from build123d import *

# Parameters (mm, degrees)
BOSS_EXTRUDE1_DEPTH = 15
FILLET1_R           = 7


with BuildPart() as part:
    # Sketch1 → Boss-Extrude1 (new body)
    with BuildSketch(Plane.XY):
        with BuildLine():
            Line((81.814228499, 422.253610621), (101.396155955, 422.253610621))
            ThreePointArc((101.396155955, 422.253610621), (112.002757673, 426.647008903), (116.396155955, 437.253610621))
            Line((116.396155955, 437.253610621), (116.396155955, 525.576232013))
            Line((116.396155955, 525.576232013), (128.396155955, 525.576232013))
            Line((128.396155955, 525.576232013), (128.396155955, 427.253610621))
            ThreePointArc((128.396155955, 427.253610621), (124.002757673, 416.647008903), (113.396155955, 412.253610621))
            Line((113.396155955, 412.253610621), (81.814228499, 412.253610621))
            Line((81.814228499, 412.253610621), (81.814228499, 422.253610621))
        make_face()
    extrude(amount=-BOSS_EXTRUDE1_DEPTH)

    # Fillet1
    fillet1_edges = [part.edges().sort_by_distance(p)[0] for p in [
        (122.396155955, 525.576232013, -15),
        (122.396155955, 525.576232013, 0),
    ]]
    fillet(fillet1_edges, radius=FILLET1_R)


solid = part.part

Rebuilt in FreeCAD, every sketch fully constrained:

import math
import FreeCAD as App
import Part
import Sketcher

V = App.Vector
Q = App.Units.Quantity


def edges_at(feature, points):
    """Names of the edges that pass closest to the given points."""
    edges = feature.Shape.Edges
    near = lambda p: min(range(len(edges)), key=lambda i: edges[i].distToShape(Part.Vertex(*p))[0])
    return sorted({f"Edge{near(p) + 1}" for p in points})

doc = App.newDocument("Part")
body = doc.addObject("PartDesign::Body", "Body")

sketch1 = body.newObject("Sketcher::SketchObject", "Sketch")
sketch1.AttachmentSupport = (doc.getObject("XY_Plane"), [""])
sketch1.MapMode = "FlatFace"
sketch1.addGeometry(Part.LineSegment(V(101, 422, 0), V(82, 422, 0)), False)
sketch1.addGeometry(Part.LineSegment(V(82, 422, 0), V(82, 412, 0)), False)
sketch1.addGeometry(Part.LineSegment(V(82, 412, 0), V(113, 412, 0)), False)
sketch1.addGeometry(Part.ArcOfCircle(Part.Circle(V(113, 427, 0), V(0, 0, 1), 15), math.radians(-90), math.radians(0)), False)
sketch1.addGeometry(Part.LineSegment(V(128, 427, 0), V(128, 526, 0)), False)
sketch1.addGeometry(Part.LineSegment(V(128, 526, 0), V(116, 526, 0)), False)
sketch1.addGeometry(Part.LineSegment(V(116, 526, 0), V(116, 437, 0)), False)
sketch1.addGeometry(Part.ArcOfCircle(Part.Circle(V(101, 437, 0), V(0, 0, 1), 15), math.radians(-90), math.radians(0)), False)
sketch1.addConstraint(Sketcher.Constraint("Coincident", 0, 2, 1, 1))
sketch1.addConstraint(Sketcher.Constraint("Coincident", 1, 2, 2, 1))
sketch1.addConstraint(Sketcher.Constraint("Tangent", 2, 2, 3, 1))
sketch1.addConstraint(Sketcher.Constraint("Tangent", 3, 2, 4, 1))
sketch1.addConstraint(Sketcher.Constraint("Coincident", 4, 2, 5, 1))
sketch1.addConstraint(Sketcher.Constraint("Coincident", 5, 2, 6, 1))
sketch1.addConstraint(Sketcher.Constraint("Tangent", 6, 2, 7, 2))
sketch1.addConstraint(Sketcher.Constraint("Tangent", 7, 1, 0, 1))
sketch1.addConstraint(Sketcher.Constraint("Horizontal", 0))
sketch1.addConstraint(Sketcher.Constraint("Vertical", 1))
sketch1.addConstraint(Sketcher.Constraint("Horizontal", 2))
sketch1.addConstraint(Sketcher.Constraint("Vertical", 4))
sketch1.addConstraint(Sketcher.Constraint("Horizontal", 5))
sketch1.addConstraint(Sketcher.Constraint("Vertical", 6))
sketch1.addConstraint(Sketcher.Constraint("Equal", 3, 7))
sketch1.addConstraint(Sketcher.Constraint("Radius", 3, Q("15 mm")))
sketch1.addConstraint(Sketcher.Constraint("DistanceX", 5, 2, 5, 1, Q("12 mm")))
sketch1.addConstraint(Sketcher.Constraint("DistanceY", 1, 2, 1, 1, Q("10 mm")))
sketch1.addConstraint(Sketcher.Constraint("DistanceY", 4, 1, 4, 2, Q("98.322621 mm")))
sketch1.addConstraint(Sketcher.Constraint("DistanceX", 0, 2, 0, 1, Q("19.581927 mm")))
sketch1.addConstraint(Sketcher.Constraint("DistanceY", -1, 1, 3, 3, Q("427.253611 mm")))
sketch1.addConstraint(Sketcher.Constraint("DistanceX", -1, 1, 0, 2, Q("81.814228 mm")))
pad1 = body.newObject("PartDesign::Pad", "Pad")
pad1.Profile = sketch1
pad1.Length = 15
pad1.Reversed = True
doc.recompute()

fillet = body.newObject("PartDesign::Fillet", "Fillet")
fillet.Base = (pad1, edges_at(pad1, [(122.396, 525.576, -15), (122.396, 525.576, 0)]))
fillet.Radius = 7

doc.recompute()
